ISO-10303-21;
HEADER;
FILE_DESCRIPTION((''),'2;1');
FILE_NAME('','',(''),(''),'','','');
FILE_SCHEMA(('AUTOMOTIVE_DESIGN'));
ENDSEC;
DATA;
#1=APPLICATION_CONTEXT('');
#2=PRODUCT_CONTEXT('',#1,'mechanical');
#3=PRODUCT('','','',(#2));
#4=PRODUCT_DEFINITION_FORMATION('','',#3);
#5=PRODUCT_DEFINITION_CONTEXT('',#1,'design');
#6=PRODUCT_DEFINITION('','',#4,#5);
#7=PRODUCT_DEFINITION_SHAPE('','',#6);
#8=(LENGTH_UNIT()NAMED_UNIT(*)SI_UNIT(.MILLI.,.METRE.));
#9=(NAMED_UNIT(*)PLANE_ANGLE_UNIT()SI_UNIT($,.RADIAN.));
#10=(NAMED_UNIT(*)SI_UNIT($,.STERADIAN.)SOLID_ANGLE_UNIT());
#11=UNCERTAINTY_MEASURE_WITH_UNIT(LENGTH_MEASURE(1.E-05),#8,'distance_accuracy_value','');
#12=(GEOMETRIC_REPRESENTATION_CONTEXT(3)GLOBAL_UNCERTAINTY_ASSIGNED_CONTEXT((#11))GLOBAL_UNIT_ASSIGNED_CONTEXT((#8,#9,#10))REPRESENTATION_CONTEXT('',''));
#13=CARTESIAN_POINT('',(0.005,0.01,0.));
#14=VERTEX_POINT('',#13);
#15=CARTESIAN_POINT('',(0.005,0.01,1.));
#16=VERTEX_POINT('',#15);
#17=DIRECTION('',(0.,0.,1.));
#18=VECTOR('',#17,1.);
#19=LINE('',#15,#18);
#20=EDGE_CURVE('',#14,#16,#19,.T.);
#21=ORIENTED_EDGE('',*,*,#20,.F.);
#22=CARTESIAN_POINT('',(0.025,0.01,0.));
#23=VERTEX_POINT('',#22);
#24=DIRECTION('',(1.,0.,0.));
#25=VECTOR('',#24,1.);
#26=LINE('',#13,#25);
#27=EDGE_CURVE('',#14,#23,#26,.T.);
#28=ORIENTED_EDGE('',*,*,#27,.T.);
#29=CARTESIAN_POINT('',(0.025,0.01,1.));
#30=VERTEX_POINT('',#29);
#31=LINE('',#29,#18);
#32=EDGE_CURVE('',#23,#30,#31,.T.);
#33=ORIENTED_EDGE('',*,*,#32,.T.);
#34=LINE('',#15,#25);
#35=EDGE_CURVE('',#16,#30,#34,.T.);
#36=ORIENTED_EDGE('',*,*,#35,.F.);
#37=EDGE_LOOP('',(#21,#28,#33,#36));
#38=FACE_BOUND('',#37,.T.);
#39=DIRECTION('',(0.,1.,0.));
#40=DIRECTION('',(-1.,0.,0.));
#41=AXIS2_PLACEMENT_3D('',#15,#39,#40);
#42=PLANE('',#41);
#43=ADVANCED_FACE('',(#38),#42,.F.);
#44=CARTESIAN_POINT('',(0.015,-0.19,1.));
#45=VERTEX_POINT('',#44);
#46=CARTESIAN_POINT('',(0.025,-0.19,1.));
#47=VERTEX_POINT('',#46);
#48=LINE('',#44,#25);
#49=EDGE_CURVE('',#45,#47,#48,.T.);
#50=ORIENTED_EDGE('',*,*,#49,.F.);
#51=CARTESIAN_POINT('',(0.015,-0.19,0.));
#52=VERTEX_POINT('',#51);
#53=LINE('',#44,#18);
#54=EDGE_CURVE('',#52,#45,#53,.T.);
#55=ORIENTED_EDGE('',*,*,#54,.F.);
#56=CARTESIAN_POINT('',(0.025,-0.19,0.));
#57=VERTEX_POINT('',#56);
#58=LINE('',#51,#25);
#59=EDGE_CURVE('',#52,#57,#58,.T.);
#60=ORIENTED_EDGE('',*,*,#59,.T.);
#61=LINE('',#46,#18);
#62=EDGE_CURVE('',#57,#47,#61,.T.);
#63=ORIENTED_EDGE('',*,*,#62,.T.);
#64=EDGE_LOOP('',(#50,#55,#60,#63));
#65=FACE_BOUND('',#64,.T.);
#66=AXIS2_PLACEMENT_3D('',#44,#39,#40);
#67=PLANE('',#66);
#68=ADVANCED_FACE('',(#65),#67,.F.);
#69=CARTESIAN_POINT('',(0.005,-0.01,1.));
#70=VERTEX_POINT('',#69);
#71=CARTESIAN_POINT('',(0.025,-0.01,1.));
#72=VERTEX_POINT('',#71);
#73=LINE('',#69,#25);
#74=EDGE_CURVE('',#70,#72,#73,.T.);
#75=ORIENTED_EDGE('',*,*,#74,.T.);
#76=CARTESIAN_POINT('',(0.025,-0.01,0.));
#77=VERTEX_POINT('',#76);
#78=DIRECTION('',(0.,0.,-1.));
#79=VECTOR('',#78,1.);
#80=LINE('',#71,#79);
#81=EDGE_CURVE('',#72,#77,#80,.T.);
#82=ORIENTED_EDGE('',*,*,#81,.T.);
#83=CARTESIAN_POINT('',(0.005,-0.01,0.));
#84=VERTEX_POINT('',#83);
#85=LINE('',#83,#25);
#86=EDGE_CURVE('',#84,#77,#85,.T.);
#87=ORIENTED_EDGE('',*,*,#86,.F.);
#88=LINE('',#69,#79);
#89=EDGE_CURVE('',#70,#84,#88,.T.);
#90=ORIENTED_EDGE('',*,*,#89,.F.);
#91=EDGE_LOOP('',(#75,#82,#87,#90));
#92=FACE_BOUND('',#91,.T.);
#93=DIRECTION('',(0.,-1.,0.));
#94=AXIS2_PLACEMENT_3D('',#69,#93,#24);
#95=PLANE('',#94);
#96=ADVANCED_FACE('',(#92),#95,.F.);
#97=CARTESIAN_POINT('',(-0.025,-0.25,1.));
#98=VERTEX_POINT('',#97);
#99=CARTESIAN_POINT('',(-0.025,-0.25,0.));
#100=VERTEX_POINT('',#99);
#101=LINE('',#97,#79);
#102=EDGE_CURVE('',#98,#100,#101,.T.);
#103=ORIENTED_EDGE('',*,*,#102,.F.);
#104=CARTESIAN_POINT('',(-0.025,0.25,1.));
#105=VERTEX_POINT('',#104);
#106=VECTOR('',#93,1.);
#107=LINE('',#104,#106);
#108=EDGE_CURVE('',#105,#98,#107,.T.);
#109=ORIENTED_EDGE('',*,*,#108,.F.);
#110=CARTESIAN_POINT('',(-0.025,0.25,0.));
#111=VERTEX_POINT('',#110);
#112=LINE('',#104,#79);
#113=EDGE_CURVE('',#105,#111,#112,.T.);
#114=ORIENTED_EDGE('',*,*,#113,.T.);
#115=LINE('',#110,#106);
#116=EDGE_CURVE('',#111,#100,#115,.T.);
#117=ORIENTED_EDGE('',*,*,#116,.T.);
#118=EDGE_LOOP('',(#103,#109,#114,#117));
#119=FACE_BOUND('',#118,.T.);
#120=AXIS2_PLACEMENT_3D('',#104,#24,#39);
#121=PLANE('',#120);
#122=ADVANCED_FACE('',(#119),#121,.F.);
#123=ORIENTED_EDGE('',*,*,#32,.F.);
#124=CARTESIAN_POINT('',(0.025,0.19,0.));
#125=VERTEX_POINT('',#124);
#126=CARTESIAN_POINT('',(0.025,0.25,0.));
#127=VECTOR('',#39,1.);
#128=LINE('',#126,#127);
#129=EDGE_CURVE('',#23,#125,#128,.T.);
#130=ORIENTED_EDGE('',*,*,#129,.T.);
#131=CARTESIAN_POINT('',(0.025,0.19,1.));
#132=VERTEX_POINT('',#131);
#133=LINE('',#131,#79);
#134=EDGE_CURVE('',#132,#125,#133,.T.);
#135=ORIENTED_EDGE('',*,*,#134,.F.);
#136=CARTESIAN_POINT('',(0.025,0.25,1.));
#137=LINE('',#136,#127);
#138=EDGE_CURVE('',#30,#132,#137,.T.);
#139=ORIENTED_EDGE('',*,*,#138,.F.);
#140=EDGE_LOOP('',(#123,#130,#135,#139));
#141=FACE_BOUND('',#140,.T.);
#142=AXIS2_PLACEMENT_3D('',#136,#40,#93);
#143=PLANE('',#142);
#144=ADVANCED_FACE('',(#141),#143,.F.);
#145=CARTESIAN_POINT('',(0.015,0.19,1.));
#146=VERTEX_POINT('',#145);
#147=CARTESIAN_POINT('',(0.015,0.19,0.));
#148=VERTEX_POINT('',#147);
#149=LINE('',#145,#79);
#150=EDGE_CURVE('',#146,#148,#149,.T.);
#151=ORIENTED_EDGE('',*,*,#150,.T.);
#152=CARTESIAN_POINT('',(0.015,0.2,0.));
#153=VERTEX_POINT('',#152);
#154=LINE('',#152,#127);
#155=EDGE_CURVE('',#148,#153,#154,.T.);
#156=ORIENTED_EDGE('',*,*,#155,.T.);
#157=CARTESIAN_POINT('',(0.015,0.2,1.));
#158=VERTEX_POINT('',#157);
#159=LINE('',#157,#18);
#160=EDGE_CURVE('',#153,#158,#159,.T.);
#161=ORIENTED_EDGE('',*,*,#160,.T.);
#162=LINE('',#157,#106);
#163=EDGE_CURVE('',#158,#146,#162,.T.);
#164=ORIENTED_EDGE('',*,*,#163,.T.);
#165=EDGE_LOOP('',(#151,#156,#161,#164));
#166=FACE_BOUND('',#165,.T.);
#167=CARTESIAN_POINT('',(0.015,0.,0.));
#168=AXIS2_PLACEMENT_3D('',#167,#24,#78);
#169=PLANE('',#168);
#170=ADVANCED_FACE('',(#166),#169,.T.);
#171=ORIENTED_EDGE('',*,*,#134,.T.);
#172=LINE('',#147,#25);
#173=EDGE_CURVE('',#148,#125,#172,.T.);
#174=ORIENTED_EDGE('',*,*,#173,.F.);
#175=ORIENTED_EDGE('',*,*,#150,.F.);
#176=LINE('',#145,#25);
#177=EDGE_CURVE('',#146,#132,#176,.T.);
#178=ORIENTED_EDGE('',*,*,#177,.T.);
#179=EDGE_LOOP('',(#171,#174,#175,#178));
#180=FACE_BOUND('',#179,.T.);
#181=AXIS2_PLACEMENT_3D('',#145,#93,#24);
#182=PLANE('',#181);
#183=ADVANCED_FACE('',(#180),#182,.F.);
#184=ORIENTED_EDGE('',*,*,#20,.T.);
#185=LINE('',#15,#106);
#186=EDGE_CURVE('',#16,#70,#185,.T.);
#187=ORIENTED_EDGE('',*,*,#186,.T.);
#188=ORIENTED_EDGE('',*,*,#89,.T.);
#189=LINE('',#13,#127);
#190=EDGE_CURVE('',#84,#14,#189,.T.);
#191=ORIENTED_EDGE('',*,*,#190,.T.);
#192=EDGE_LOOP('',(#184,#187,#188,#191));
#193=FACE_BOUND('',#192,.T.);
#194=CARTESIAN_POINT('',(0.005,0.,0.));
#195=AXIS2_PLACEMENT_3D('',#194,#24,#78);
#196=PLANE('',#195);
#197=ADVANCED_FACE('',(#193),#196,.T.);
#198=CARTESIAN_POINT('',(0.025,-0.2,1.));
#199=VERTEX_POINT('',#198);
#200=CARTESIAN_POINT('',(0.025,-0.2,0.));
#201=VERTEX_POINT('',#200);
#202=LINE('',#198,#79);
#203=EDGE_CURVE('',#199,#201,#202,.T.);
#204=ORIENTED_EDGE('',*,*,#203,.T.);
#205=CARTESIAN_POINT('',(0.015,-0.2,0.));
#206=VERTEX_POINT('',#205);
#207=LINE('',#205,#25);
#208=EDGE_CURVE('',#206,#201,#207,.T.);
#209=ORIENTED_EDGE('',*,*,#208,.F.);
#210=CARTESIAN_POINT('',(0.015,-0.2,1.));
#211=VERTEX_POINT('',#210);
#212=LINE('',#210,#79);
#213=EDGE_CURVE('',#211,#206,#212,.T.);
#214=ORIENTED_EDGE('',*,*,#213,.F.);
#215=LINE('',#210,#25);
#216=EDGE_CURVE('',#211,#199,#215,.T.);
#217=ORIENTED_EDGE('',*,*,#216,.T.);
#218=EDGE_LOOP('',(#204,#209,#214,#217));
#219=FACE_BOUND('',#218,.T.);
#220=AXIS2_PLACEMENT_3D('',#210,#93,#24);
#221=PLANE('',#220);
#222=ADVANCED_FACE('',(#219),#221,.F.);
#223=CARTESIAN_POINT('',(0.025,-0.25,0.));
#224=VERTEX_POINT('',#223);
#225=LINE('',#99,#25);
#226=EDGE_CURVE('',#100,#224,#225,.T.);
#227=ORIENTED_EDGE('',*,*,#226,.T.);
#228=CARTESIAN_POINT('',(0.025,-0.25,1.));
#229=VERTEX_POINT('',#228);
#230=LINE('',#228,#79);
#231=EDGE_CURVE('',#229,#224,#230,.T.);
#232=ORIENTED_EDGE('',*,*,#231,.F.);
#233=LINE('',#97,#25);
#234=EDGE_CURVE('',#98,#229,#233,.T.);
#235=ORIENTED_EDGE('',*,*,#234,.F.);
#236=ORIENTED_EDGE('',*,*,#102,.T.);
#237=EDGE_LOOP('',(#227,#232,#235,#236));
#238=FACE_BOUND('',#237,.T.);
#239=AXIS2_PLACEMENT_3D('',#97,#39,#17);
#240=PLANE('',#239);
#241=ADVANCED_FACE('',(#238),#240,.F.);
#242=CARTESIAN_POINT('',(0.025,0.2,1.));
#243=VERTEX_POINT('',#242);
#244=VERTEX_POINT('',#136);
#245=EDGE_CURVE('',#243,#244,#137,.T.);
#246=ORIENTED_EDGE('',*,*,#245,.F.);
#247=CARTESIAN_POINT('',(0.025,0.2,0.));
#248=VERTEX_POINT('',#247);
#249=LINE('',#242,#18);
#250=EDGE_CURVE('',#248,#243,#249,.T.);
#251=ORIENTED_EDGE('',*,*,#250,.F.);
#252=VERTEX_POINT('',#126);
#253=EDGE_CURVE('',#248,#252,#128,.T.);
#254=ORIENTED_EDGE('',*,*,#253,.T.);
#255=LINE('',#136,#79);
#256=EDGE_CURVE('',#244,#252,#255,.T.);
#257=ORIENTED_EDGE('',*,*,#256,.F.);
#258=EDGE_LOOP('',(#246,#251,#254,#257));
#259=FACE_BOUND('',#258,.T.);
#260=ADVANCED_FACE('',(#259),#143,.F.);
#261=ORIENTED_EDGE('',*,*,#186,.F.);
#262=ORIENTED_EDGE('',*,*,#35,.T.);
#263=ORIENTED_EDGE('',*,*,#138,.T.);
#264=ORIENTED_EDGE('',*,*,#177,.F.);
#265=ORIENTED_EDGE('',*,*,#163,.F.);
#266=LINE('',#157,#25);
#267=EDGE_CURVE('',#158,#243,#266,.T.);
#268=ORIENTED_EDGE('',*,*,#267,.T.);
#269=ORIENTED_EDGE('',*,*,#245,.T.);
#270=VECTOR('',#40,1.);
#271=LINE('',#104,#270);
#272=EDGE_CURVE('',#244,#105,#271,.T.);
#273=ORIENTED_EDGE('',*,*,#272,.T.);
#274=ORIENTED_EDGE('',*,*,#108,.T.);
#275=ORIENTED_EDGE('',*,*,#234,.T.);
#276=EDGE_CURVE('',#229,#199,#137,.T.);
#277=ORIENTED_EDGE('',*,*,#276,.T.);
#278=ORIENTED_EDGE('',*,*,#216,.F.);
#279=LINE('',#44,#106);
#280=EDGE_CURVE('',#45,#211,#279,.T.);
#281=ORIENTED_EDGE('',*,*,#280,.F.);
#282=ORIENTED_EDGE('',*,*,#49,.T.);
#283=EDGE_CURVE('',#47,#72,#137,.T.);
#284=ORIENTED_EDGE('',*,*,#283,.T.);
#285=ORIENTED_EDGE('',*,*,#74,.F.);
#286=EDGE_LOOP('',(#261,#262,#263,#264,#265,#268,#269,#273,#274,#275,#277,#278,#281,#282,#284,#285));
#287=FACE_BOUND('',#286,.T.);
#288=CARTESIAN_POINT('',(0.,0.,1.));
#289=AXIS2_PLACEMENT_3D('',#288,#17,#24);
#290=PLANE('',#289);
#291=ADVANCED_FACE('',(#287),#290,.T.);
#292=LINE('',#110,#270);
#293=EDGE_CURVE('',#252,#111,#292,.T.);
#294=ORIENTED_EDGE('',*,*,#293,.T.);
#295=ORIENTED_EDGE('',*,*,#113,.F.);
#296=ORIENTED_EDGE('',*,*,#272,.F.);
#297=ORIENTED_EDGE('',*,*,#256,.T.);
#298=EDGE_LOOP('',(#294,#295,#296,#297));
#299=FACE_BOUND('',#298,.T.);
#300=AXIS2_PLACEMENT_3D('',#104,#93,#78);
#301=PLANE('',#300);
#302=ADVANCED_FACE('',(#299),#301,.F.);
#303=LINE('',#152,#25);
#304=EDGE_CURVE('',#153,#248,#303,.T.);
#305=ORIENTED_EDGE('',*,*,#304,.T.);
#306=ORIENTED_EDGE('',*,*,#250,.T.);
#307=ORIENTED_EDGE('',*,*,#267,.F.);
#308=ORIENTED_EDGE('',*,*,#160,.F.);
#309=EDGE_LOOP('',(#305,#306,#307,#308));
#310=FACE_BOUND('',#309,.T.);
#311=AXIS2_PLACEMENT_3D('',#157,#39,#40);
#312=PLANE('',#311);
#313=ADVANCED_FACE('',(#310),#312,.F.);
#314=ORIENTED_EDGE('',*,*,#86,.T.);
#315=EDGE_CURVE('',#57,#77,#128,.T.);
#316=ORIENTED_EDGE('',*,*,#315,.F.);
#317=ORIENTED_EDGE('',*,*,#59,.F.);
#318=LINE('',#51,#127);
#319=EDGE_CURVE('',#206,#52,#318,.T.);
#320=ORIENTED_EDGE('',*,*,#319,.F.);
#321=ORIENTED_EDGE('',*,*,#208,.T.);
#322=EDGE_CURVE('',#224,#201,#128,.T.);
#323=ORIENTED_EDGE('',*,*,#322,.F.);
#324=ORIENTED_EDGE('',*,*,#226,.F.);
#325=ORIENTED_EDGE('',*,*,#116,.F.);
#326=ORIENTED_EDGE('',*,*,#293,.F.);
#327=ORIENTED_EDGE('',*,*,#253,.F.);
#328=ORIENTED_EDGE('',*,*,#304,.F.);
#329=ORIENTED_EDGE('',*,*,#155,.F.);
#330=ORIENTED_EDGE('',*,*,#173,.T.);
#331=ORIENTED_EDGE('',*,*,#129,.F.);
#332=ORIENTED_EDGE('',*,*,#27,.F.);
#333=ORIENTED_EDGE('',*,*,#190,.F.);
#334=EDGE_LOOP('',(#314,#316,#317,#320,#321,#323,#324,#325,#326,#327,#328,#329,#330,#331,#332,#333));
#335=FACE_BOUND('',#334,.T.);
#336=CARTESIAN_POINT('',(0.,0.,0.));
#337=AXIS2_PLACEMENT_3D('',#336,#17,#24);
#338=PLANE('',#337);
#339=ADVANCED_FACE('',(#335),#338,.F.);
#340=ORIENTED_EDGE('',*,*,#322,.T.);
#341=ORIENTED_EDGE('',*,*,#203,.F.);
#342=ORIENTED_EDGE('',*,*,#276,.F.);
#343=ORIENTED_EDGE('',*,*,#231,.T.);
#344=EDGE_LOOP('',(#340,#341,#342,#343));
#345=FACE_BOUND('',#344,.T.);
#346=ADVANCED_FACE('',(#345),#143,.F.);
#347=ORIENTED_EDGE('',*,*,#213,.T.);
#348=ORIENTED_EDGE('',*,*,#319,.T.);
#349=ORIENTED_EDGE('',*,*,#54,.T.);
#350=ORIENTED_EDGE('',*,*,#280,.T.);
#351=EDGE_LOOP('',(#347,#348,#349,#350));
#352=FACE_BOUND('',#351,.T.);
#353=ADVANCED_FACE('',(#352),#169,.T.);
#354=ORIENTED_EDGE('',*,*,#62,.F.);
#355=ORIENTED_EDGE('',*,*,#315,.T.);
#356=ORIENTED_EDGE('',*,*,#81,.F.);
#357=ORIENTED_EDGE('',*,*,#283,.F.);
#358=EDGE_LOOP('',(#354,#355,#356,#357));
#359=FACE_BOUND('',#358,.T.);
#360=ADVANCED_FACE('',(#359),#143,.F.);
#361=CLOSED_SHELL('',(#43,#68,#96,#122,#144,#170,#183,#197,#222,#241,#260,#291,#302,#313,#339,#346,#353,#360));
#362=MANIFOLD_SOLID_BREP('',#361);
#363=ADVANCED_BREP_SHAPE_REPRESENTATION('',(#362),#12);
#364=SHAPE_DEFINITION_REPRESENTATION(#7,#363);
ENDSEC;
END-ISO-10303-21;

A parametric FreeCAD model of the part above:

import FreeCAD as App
import Part
import Sketcher

V = App.Vector
Q = App.Units.Quantity

doc = App.newDocument("Part")
body = doc.addObject("PartDesign::Body", "Body")

# Sketch on XY plane
sketch1 = body.newObject("Sketcher::SketchObject", "Sketch")
sketch1.AttachmentSupport = (doc.getObject("XY_Plane"), [""])
sketch1.MapMode = "FlatFace"
sketch1.addGeometry(Part.LineSegment(V(-0.03, 0.25, 0), V(-0.03, -0.25, 0)), False)
sketch1.addGeometry(Part.LineSegment(V(-0.03, -0.25, 0), V(0.03, -0.25, 0)), False)
sketch1.addGeometry(Part.LineSegment(V(0.03, -0.25, 0), V(0.03, 0.25, 0)), False)
sketch1.addGeometry(Part.LineSegment(V(0.03, 0.25, 0), V(-0.03, 0.25, 0)), False)
sketch1.addConstraint(Sketcher.Constraint("Coincident", 0, 2, 1, 1))
sketch1.addConstraint(Sketcher.Constraint("Coincident", 1, 2, 2, 1))
sketch1.addConstraint(Sketcher.Constraint("Coincident", 2, 2, 3, 1))
sketch1.addConstraint(Sketcher.Constraint("Coincident", 3, 2, 0, 1))
sketch1.addConstraint(Sketcher.Constraint("Vertical", 0))
sketch1.addConstraint(Sketcher.Constraint("Horizontal", 1))
sketch1.addConstraint(Sketcher.Constraint("Vertical", 2))
sketch1.addConstraint(Sketcher.Constraint("Horizontal", 3))
sketch1.addConstraint(Sketcher.Constraint("Symmetric", 0, 2, 2, 2, -1, 1))
sketch1.addConstraint(Sketcher.Constraint("DistanceY", 0, 2, 0, 1, Q("0.5 mm")))
sketch1.addConstraint(Sketcher.Constraint("DistanceX", 1, 1, 1, 2, Q("0.05 mm")))
pad1 = body.newObject("PartDesign::Pad", "Pad")
pad1.Profile = sketch1
pad1.Length = 1

# Sketch on YZ plane
sketch2 = body.newObject("Sketcher::SketchObject", "Sketch001")
sketch2.AttachmentSupport = (doc.getObject("YZ_Plane"), [""])
sketch2.MapMode = "FlatFace"
sketch2.AttachmentOffset = App.Placement(V(0, 0, 0.025), App.Rotation())
sketch2.addGeometry(Part.LineSegment(V(0.2, 1, 0), V(0.19, 1, 0)), False)
sketch2.addGeometry(Part.LineSegment(V(0.19, 1, 0), V(0.19, 0, 0)), False)
sketch2.addGeometry(Part.LineSegment(V(0.19, 0, 0), V(0.2, 0, 0)), False)
sketch2.addGeometry(Part.LineSegment(V(0.2, 0, 0), V(0.2, 1, 0)), False)
sketch2.addGeometry(Part.LineSegment(V(-0.19, 1, 0), V(-0.2, 1, 0)), False)
sketch2.addGeometry(Part.LineSegment(V(-0.2, 1, 0), V(-0.2, 0, 0)), False)
sketch2.addGeometry(Part.LineSegment(V(-0.2, 0, 0), V(-0.19, 0, 0)), False)
sketch2.addGeometry(Part.LineSegment(V(-0.19, 0, 0), V(-0.19, 1, 0)), False)
sketch2.addConstraint(Sketcher.Constraint("Coincident", 0, 2, 1, 1))
sketch2.addConstraint(Sketcher.Constraint("Coincident", 1, 2, 2, 1))
sketch2.addConstraint(Sketcher.Constraint("Coincident", 2, 2, 3, 1))
sketch2.addConstraint(Sketcher.Constraint("Coincident", 3, 2, 0, 1))
sketch2.addConstraint(Sketcher.Constraint("Coincident", 4, 2, 5, 1))
sketch2.addConstraint(Sketcher.Constraint("Coincident", 5, 2, 6, 1))
sketch2.addConstraint(Sketcher.Constraint("Coincident", 6, 2, 7, 1))
sketch2.addConstraint(Sketcher.Constraint("Coincident", 7, 2, 4, 1))
sketch2.addConstraint(Sketcher.Constraint("Horizontal", 0))
sketch2.addConstraint(Sketcher.Constraint("Vertical", 1))
sketch2.addConstraint(Sketcher.Constraint("Horizontal", 2))
sketch2.addConstraint(Sketcher.Constraint("Vertical", 3))
sketch2.addConstraint(Sketcher.Constraint("Horizontal", 4))
sketch2.addConstraint(Sketcher.Constraint("Vertical", 5))
sketch2.addConstraint(Sketcher.Constraint("Horizontal", 6))
sketch2.addConstraint(Sketcher.Constraint("Vertical", 7))
sketch2.addConstraint(Sketcher.Constraint("Symmetric", 2, 2, 5, 2, -1, 1))
sketch2.addConstraint(Sketcher.Constraint("Symmetric", 1, 2, 6, 2, -2))
sketch2.addConstraint(Sketcher.Constraint("Horizontal", 3, 2, 4, 2))
sketch2.addConstraint(Sketcher.Constraint("DistanceY", 1, 2, 1, 1, Q("1 mm")))
sketch2.addConstraint(Sketcher.Constraint("DistanceX", 0, 2, 0, 1, Q("0.01 mm")))
sketch2.addConstraint(Sketcher.Constraint("DistanceX", -1, 1, 2, 2, Q("0.2 mm")))
pocket1 = body.newObject("PartDesign::Pocket", "Pocket")
pocket1.Profile = sketch2
pocket1.Length = 0.01

# Sketch on YZ plane
sketch3 = body.newObject("Sketcher::SketchObject", "Sketch002")
sketch3.AttachmentSupport = (doc.getObject("YZ_Plane"), [""])
sketch3.MapMode = "FlatFace"
sketch3.AttachmentOffset = App.Placement(V(0, 0, 0.025), App.Rotation())
sketch3.addGeometry(Part.LineSegment(V(0.01, 1, 0), V(-0.01, 1, 0)), False)
sketch3.addGeometry(Part.LineSegment(V(-0.01, 1, 0), V(-0.01, 0, 0)), False)
sketch3.addGeometry(Part.LineSegment(V(-0.01, 0, 0), V(0.01, 0, 0)), False)
sketch3.addGeometry(Part.LineSegment(V(0.01, 0, 0), V(0.01, 1, 0)), False)
sketch3.addConstraint(Sketcher.Constraint("Coincident", 0, 2, 1, 1))
sketch3.addConstraint(Sketcher.Constraint("Coincident", 1, 2, 2, 1))
sketch3.addConstraint(Sketcher.Constraint("Coincident", 2, 2, 3, 1))
sketch3.addConstraint(Sketcher.Constraint("Coincident", 3, 2, 0, 1))
sketch3.addConstraint(Sketcher.Constraint("Horizontal", 0))
sketch3.addConstraint(Sketcher.Constraint("Vertical", 1))
sketch3.addConstraint(Sketcher.Constraint("Horizontal", 2))
sketch3.addConstraint(Sketcher.Constraint("Vertical", 3))
sketch3.addConstraint(Sketcher.Constraint("Symmetric", 1, 2, 2, 2, -1, 1))
sketch3.addConstraint(Sketcher.Constraint("DistanceY", 1, 2, 1, 1, Q("1 mm")))
sketch3.addConstraint(Sketcher.Constraint("DistanceX", 0, 2, 0, 1, Q("0.02 mm")))
pocket2 = body.newObject("PartDesign::Pocket", "Pocket001")
pocket2.Profile = sketch3
pocket2.Length = 0.02

doc.recompute()
